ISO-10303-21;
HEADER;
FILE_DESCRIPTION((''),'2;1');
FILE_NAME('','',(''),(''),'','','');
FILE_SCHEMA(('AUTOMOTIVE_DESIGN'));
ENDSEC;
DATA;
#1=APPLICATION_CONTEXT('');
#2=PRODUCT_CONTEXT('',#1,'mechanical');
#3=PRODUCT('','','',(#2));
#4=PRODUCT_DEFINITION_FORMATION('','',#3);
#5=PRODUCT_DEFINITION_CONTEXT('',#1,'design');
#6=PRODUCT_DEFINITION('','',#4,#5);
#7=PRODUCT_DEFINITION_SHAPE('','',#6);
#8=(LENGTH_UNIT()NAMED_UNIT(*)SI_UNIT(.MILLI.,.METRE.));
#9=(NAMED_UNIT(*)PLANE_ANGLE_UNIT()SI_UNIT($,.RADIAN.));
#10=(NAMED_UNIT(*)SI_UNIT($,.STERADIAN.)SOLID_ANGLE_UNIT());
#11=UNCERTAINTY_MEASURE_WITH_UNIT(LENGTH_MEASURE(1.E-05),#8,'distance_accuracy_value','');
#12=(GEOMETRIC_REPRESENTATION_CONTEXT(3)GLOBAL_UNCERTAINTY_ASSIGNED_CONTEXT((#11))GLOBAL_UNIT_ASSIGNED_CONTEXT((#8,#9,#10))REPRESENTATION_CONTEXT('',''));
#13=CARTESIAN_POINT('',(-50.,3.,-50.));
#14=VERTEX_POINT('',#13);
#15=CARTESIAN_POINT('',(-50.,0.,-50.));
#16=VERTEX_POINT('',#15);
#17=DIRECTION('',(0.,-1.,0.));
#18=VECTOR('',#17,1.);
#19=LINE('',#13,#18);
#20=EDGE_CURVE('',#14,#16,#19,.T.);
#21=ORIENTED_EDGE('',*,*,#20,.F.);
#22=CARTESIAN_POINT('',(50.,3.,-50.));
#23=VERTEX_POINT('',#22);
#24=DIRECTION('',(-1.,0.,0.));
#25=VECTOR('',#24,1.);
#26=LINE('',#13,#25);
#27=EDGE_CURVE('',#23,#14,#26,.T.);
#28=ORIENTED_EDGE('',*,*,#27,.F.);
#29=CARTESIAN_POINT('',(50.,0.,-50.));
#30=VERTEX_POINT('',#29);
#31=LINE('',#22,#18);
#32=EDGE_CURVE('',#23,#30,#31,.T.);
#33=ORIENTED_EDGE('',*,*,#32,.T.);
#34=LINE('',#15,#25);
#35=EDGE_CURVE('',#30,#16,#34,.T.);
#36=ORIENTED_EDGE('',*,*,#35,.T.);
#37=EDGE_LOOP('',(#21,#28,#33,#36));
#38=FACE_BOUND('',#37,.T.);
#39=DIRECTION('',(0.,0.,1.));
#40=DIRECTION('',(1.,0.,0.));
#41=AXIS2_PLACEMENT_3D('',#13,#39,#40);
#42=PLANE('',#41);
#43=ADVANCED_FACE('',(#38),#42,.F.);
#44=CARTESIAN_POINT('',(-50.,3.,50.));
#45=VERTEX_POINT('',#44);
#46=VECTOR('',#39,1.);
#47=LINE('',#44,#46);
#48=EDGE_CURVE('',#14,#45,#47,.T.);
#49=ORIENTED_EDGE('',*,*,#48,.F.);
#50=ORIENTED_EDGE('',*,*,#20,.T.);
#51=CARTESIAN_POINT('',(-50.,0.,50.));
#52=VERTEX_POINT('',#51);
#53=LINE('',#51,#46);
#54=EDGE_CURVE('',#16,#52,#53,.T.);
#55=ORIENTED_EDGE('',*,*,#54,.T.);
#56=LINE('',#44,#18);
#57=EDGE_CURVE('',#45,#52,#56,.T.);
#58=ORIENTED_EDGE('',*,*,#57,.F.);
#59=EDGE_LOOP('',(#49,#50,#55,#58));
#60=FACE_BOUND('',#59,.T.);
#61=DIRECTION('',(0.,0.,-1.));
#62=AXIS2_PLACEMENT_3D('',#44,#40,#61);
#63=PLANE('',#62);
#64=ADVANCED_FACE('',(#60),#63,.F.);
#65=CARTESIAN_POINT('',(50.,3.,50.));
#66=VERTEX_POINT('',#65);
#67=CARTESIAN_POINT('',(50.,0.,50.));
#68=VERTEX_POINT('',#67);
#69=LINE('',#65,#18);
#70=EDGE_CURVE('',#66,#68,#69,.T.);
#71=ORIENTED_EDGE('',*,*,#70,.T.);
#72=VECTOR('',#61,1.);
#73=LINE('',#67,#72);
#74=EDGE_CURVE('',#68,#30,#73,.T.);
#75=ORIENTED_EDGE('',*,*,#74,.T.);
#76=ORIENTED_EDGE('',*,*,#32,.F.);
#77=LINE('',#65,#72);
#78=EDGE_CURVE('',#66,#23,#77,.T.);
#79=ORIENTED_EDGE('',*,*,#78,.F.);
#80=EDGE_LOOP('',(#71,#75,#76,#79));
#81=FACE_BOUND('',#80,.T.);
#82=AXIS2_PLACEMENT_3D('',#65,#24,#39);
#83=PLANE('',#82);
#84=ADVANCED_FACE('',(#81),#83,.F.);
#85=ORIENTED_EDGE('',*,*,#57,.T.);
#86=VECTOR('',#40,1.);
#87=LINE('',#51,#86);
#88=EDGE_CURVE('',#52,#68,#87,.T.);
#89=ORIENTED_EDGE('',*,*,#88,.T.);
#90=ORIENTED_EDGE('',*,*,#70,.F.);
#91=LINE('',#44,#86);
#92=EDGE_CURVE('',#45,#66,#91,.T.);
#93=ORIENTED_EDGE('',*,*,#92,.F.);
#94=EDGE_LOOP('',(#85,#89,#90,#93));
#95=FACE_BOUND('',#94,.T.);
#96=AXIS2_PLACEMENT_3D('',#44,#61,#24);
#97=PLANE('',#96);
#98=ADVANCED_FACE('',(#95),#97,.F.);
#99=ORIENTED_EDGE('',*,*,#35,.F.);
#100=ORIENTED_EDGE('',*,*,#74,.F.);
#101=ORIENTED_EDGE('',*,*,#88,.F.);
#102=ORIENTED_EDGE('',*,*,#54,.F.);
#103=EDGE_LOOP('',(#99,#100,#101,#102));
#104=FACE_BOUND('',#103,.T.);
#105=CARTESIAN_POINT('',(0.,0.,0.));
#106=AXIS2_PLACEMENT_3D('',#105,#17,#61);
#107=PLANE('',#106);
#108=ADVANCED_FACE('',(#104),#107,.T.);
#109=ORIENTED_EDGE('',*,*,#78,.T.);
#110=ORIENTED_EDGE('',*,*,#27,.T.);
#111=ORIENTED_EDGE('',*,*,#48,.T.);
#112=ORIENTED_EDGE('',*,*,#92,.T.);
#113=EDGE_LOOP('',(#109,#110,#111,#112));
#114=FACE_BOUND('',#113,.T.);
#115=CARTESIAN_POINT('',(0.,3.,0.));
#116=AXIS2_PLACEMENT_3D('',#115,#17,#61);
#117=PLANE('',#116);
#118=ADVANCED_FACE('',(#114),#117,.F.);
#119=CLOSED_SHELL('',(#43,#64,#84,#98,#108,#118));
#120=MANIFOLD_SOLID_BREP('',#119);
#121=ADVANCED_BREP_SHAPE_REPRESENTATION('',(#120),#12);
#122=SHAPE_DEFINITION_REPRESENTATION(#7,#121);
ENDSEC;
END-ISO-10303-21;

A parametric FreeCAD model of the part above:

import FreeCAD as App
import Part
import Sketcher
Q = App.Units.Quantity

doc = App.newDocument("Part")
body = doc.addObject("PartDesign::Body", "Body")

# Sketch on XZ plane
sketch1 = body.newObject("Sketcher::SketchObject", "Sketch")
sketch1.AttachmentSupport = (doc.getObject("XZ_Plane"), [""])
sketch1.MapMode = "FlatFace"
sketch1.addGeometry(Part.LineSegment(App.Vector(-50, -50, 0), App.Vector(-50, 50, 0)), False)
sketch1.addGeometry(Part.LineSegment(App.Vector(-50, 50, 0), App.Vector(50, 50, 0)), False)
sketch1.addGeometry(Part.LineSegment(App.Vector(50, 50, 0), App.Vector(50, -50, 0)), False)
sketch1.addGeometry(Part.LineSegment(App.Vector(50, -50, 0), App.Vector(-50, -50, 0)), False)
sketch1.addConstraint(Sketcher.Constraint("Coincident", 0, 2, 1, 1))
sketch1.addConstraint(Sketcher.Constraint("Coincident", 1, 2, 2, 1))
sketch1.addConstraint(Sketcher.Constraint("Coincident", 2, 2, 3, 1))
sketch1.addConstraint(Sketcher.Constraint("Coincident", 3, 2, 0, 1))
sketch1.addConstraint(Sketcher.Constraint("Vertical", 0))
sketch1.addConstraint(Sketcher.Constraint("Horizontal", 1))
sketch1.addConstraint(Sketcher.Constraint("Vertical", 2))
sketch1.addConstraint(Sketcher.Constraint("Horizontal", 3))
sketch1.addConstraint(Sketcher.Constraint("Symmetric", 0, 2, 2, 2, -1, 1))
sketch1.addConstraint(Sketcher.Constraint("Equal", 3, 0))
sketch1.addConstraint(Sketcher.Constraint("DistanceX", 1, 1, 1, 2, Q("100 mm")))
pad1 = body.newObject("PartDesign::Pad", "Pad")
pad1.Profile = sketch1
pad1.Length = 3
pad1.Reversed = True

doc.recompute()
